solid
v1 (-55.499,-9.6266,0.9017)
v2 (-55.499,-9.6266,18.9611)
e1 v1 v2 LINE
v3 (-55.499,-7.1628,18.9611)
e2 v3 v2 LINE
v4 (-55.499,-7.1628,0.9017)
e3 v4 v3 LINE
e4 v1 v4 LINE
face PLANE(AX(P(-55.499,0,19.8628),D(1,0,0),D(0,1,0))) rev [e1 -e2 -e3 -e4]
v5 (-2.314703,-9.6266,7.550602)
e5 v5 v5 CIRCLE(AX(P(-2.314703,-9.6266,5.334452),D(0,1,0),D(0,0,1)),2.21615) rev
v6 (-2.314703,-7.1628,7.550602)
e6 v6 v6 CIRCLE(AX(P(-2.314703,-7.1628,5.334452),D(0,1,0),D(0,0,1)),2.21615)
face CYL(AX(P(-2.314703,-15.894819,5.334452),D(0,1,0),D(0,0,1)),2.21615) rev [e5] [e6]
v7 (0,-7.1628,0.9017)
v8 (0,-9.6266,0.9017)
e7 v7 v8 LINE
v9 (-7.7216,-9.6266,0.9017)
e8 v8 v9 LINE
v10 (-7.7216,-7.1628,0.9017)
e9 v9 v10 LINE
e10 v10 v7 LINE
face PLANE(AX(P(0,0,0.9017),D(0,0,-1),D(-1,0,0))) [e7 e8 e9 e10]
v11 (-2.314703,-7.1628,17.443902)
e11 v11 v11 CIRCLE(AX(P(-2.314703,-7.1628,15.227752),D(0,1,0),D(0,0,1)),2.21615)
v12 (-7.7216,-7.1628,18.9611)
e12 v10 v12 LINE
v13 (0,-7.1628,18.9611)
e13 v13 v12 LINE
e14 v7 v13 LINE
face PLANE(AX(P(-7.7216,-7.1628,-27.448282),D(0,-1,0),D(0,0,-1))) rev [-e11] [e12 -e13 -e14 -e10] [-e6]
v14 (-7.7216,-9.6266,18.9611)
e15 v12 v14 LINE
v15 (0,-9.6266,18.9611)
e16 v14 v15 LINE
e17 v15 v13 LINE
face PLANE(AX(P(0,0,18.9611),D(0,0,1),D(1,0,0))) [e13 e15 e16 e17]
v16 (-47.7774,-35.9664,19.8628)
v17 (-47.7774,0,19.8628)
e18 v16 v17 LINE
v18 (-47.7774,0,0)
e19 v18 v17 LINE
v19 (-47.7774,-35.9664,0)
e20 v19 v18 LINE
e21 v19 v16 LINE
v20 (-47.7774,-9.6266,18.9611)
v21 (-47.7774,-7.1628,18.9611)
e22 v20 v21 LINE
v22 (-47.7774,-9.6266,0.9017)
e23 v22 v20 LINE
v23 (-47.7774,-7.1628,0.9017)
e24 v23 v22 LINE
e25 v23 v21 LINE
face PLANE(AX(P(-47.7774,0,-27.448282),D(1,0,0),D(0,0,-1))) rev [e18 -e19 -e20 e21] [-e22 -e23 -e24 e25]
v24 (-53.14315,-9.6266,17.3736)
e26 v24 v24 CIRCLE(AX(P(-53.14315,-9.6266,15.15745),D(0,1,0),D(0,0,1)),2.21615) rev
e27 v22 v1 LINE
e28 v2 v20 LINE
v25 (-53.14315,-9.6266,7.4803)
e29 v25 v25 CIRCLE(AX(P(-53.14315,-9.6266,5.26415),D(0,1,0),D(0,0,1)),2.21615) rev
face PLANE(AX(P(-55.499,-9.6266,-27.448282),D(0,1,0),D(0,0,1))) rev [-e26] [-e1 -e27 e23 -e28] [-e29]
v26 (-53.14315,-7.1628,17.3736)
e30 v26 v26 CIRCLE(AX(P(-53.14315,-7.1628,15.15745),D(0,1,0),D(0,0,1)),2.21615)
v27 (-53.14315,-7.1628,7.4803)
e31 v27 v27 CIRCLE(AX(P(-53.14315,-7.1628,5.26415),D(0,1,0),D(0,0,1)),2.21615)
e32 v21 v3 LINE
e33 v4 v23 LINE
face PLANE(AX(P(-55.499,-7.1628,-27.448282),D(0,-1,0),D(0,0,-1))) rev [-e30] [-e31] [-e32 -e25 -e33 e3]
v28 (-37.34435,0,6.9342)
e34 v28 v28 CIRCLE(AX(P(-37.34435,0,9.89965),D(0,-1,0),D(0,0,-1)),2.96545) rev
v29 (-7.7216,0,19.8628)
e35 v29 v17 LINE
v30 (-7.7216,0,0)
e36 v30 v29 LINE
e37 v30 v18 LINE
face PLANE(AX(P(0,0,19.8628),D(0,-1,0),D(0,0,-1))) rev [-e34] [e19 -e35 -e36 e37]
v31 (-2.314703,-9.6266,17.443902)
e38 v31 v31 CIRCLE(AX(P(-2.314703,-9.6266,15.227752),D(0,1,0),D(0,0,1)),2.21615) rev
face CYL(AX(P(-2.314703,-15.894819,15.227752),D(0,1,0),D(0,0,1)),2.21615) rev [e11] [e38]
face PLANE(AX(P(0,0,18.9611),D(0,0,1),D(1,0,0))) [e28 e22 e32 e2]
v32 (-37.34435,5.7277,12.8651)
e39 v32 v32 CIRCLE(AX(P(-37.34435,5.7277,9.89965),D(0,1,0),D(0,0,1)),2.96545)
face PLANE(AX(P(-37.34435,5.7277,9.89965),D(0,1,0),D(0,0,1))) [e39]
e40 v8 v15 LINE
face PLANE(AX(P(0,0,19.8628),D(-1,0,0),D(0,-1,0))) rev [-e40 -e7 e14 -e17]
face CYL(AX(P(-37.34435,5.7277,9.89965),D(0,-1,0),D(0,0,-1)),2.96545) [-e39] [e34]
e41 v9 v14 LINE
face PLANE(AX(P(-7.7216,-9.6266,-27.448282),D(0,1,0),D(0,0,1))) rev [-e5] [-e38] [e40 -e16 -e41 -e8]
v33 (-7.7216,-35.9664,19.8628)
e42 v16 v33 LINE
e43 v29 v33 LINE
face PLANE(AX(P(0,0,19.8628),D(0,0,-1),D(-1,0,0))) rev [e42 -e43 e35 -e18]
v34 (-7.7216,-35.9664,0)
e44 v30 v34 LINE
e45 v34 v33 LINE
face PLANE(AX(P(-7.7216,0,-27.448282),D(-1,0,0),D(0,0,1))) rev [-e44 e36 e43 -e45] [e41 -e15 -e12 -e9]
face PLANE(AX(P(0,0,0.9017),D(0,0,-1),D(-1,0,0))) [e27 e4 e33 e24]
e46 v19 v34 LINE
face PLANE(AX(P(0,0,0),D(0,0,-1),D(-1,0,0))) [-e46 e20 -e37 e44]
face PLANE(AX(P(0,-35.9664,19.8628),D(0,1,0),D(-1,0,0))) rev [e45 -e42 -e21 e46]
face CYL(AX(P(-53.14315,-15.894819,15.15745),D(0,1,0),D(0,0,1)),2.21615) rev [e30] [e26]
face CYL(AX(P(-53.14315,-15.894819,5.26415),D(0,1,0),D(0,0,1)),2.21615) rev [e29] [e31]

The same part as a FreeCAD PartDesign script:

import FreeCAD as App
import Part
import Sketcher
Q = App.Units.Quantity


def add_polygon(sketch, points):
    """Adds a closed chain of lines whose ends are joined by coincident constraints."""
    first, n = sketch.GeometryCount, len(points)
    for a, b in zip(points, points[1:] + points[:1]):
        sketch.addGeometry(Part.LineSegment(App.Vector(*a, 0), App.Vector(*b, 0)), False)
    for i in range(n):
        sketch.addConstraint(Sketcher.Constraint("Coincident", first + i, 2, first + (i + 1) % n, 1))

doc = App.newDocument("Part")
body = doc.addObject("PartDesign::Body", "Body")

# Sketch on XY plane
sketch1 = body.newObject("Sketcher::SketchObject", "Sketch")
sketch1.AttachmentSupport = (doc.getObject("XY_Plane"), [""])
sketch1.MapMode = "FlatFace"
add_polygon(sketch1, [(-55, 0), (-55, -36), (0, -36), (0, 0)])  # lines 0-3
sketch1.addConstraint([
    Sketcher.Constraint("Vertical", 0),
    Sketcher.Constraint("Horizontal", 1),
    Sketcher.Constraint("Vertical", 2),
    Sketcher.Constraint("Horizontal", 3),
    Sketcher.Constraint("Coincident", 2, 2, -1, 1),
    Sketcher.Constraint("DistanceX", 1, 1, 1, 2, Q("2.185 in")),
    Sketcher.Constraint("DistanceY", 0, 2, 0, 1, Q("1.416 in")),
])
pad1 = body.newObject("PartDesign::Pad", "Pad")
pad1.Profile = sketch1
pad1.Length = Q("0.782 in")

# Sketch on XY plane
sketch2 = body.newObject("Sketcher::SketchObject", "Sketch001")
sketch2.AttachmentSupport = (doc.getObject("XY_Plane"), [""])
sketch2.MapMode = "FlatFace"
sketch2.AttachmentOffset = App.Placement(App.Vector(0, 0, 0.782 * 25.4), App.Rotation())
add_polygon(sketch2, [(-55, 0), (-55, -7), (-48, -7), (-48, 0)])  # lines 0-3
add_polygon(sketch2, [(-55, -10), (-55, -36), (-48, -36), (-48, -10)])  # lines 4-7
sketch2.addConstraint([
    Sketcher.Constraint("Vertical", 0),
    Sketcher.Constraint("Horizontal", 1),
    Sketcher.Constraint("Vertical", 2),
    Sketcher.Constraint("Horizontal", 3),
    Sketcher.Constraint("Vertical", 4),
    Sketcher.Constraint("Horizontal", 5),
    Sketcher.Constraint("Vertical", 6),
    Sketcher.Constraint("Horizontal", 7),
    Sketcher.Constraint("PointOnObject", 2, 2, -1),
    Sketcher.Constraint("Vertical", 3, 2, 4, 2),
    Sketcher.Constraint("Vertical", 2, 2, 5, 2),
    Sketcher.Constraint("DistanceX", 1, 1, 1, 2, Q("0.304 in")),
    Sketcher.Constraint("DistanceY", 0, 2, 0, 1, Q("0.282 in")),
    Sketcher.Constraint("DistanceY", 4, 2, 4, 1, Q("1.037 in")),
    Sketcher.Constraint("DistanceX", 0, 2, -1, 1, Q("2.185 in")),
    Sketcher.Constraint("DistanceY", 4, 2, -1, 1, Q("1.416 in")),
])
pocket1 = body.newObject("PartDesign::Pocket", "Pocket")
pocket1.Profile = sketch2
pocket1.Length = Q("0.782 in")

# Sketch on XY plane
sketch3 = body.newObject("Sketcher::SketchObject", "Sketch002")
sketch3.AttachmentSupport = (doc.getObject("XY_Plane"), [""])
sketch3.MapMode = "FlatFace"
sketch3.AttachmentOffset = App.Placement(App.Vector(0, 0, 0.782 * 25.4), App.Rotation())
add_polygon(sketch3, [(-8, 0), (-8, -7), (0, -7), (0, 0)])  # lines 0-3
add_polygon(sketch3, [(-8, -10), (-8, -36), (0, -36), (0, -10)])  # lines 4-7
sketch3.addConstraint([
    Sketcher.Constraint("Vertical", 0),
    Sketcher.Constraint("Horizontal", 1),
    Sketcher.Constraint("Vertical", 2),
    Sketcher.Constraint("Horizontal", 3),
    Sketcher.Constraint("Vertical", 4),
    Sketcher.Constraint("Horizontal", 5),
    Sketcher.Constraint("Vertical", 6),
    Sketcher.Constraint("Horizontal", 7),
    Sketcher.Constraint("Coincident", 2, 2, -1, 1),
    Sketcher.Constraint("PointOnObject", 5, 2, -2),
    Sketcher.Constraint("Vertical", 3, 2, 4, 2),
    Sketcher.Constraint("DistanceX", 1, 1, 1, 2, Q("0.304 in")),
    Sketcher.Constraint("DistanceY", 0, 2, 0, 1, Q("0.282 in")),
    Sketcher.Constraint("DistanceY", 4, 2, 4, 1, Q("1.037 in")),
    Sketcher.Constraint("DistanceY", 4, 2, -1, 1, Q("1.416 in")),
])
pocket2 = body.newObject("PartDesign::Pocket", "Pocket001")
pocket2.Profile = sketch3
pocket2.Length = Q("0.782 in")

# Sketch on XZ plane
sketch4 = body.newObject("Sketcher::SketchObject", "Sketch003")
sketch4.AttachmentSupport = (doc.getObject("XZ_Plane"), [""])
sketch4.MapMode = "FlatFace"
sketch4.AttachmentOffset = App.Placement(App.Vector(0, 0, 0.282 * 25.4), App.Rotation())
sketch4.addGeometry([
    Part.Circle(App.Vector(-53.1, 5.3, 0), App.Vector(0, 0, 1), 2.2),
    Part.Circle(App.Vector(-53.1, 15.2, 0), App.Vector(0, 0, 1), 2.2),
    Part.Circle(App.Vector(-2.3, 5.3, 0), App.Vector(0, 0, 1), 2.2),
    Part.Circle(App.Vector(-2.3, 15.2, 0), App.Vector(0, 0, 1), 2.2),
], False)
sketch4.addConstraint([
    Sketcher.Constraint("Equal", 0, 1),
    Sketcher.Constraint("Equal", 1, 2),
    Sketcher.Constraint("Equal", 2, 3),
    Sketcher.Constraint("Vertical", 0, 3, 1, 3),
    Sketcher.Constraint("Vertical", 2, 3, 3, 3),
    Sketcher.Constraint("Diameter", 0, Q("0.1745 in")),
    Sketcher.Constraint("DistanceY", 0, 3, 1, 3, Q("0.3895 in")),
    Sketcher.Constraint("DistanceY", 2, 3, 3, 3, Q("0.3895 in")),
    Sketcher.Constraint("DistanceY", 0, 3, 2, 3, 0.070302),
    Sketcher.Constraint("DistanceX", 0, 3, -1, 1, 53.14315),
    Sketcher.Constraint("DistanceY", -1, 1, 0, 3, 5.26415),
    Sketcher.Constraint("DistanceX", 2, 3, -1, 1, 2.314703),
])
pocket3 = body.newObject("PartDesign::Pocket", "Pocket002")
pocket3.Profile = sketch4
pocket3.Length = Q("0.097 in")
pocket3.Reversed = True

# Sketch on XY plane
sketch5 = body.newObject("Sketcher::SketchObject", "Sketch004")
sketch5.AttachmentSupport = (doc.getObject("XY_Plane"), [""])
sketch5.MapMode = "FlatFace"
sketch5.AttachmentOffset = App.Placement(App.Vector(0, 0, 0.782 * 25.4), App.Rotation())
add_polygon(sketch5, [(-55.5, -7.2), (-55.5, -9.6), (-47.8, -9.6), (-47.8, -7.2)])  # lines 0-3
sketch5.addConstraint([
    Sketcher.Constraint("Vertical", 0),
    Sketcher.Constraint("Horizontal", 1),
    Sketcher.Constraint("Vertical", 2),
    Sketcher.Constraint("Horizontal", 3),
    Sketcher.Constraint("DistanceX", 1, 1, 1, 2, Q("0.304 in")),
    Sketcher.Constraint("DistanceY", 0, 2, 0, 1, Q("0.097 in")),
    Sketcher.Constraint("DistanceX", 0, 2, -1, 1, Q("2.185 in")),
    Sketcher.Constraint("DistanceY", 0, 2, -1, 1, Q("0.379 in")),
])
pocket4 = body.newObject("PartDesign::Pocket", "Pocket003")
pocket4.Profile = sketch5
pocket4.Length = Q("0.0355 in")

# Sketch on XY plane
sketch6 = body.newObject("Sketcher::SketchObject", "Sketch005")
sketch6.AttachmentSupport = (doc.getObject("XY_Plane"), [""])
sketch6.MapMode = "FlatFace"
add_polygon(sketch6, [(-47.8, -7.2), (-47.8, -9.6), (-55.5, -9.6), (-55.5, -7.2)])  # lines 0-3
sketch6.addConstraint([
    Sketcher.Constraint("Vertical", 0),
    Sketcher.Constraint("Horizontal", 1),
    Sketcher.Constraint("Vertical", 2),
    Sketcher.Constraint("Horizontal", 3),
    Sketcher.Constraint("DistanceX", 1, 2, 1, 1, Q("0.304 in")),
    Sketcher.Constraint("DistanceY", 0, 2, 0, 1, Q("0.097 in")),
    Sketcher.Constraint("DistanceX", 0, 2, -1, 1, Q("1.881 in")),
    Sketcher.Constraint("DistanceY", 0, 2, -1, 1, Q("0.379 in")),
])
pocket5 = body.newObject("PartDesign::Pocket", "Pocket004")
pocket5.Profile = sketch6
pocket5.Length = Q("0.0355 in")
pocket5.Reversed = True

# Sketch on XY plane
sketch7 = body.newObject("Sketcher::SketchObject", "Sketch006")
sketch7.AttachmentSupport = (doc.getObject("XY_Plane"), [""])
sketch7.MapMode = "FlatFace"
add_polygon(sketch7, [(0, -7.2), (0, -9.6), (-7.7, -9.6), (-7.7, -7.2)])  # lines 0-3
sketch7.addConstraint([
    Sketcher.Constraint("Vertical", 0),
    Sketcher.Constraint("Horizontal", 1),
    Sketcher.Constraint("Vertical", 2),
    Sketcher.Constraint("Horizontal", 3),
    Sketcher.Constraint("PointOnObject", 0, 2, -2),
    Sketcher.Constraint("DistanceX", 1, 2, 1, 1, Q("0.304 in")),
    Sketcher.Constraint("DistanceY", 0, 2, 0, 1, Q("0.097 in")),
    Sketcher.Constraint("DistanceY", 0, 2, -1, 1, Q("0.379 in")),
])
pocket6 = body.newObject("PartDesign::Pocket", "Pocket005")
pocket6.Profile = sketch7
pocket6.Length = Q("0.0355 in")
pocket6.Reversed = True

# Sketch on XY plane
sketch8 = body.newObject("Sketcher::SketchObject", "Sketch007")
sketch8.AttachmentSupport = (doc.getObject("XY_Plane"), [""])
sketch8.MapMode = "FlatFace"
sketch8.AttachmentOffset = App.Placement(App.Vector(0, 0, 0.782 * 25.4), App.Rotation())
add_polygon(sketch8, [(-7.7, -7.2), (-7.7, -9.6), (0, -9.6), (0, -7.2)])  # lines 0-3
sketch8.addConstraint([
    Sketcher.Constraint("Vertical", 0),
    Sketcher.Constraint("Horizontal", 1),
    Sketcher.Constraint("Vertical", 2),
    Sketcher.Constraint("Horizontal", 3),
    Sketcher.Constraint("PointOnObject", 1, 2, -2),
    Sketcher.Constraint("DistanceX", 1, 1, 1, 2, Q("0.304 in")),
    Sketcher.Constraint("DistanceY", 0, 2, 0, 1, Q("0.097 in")),
    Sketcher.Constraint("DistanceY", 0, 2, -1, 1, Q("0.379 in")),
])
pocket7 = body.newObject("PartDesign::Pocket", "Pocket006")
pocket7.Profile = sketch8
pocket7.Length = Q("0.0355 in")

# Sketch on XZ plane
sketch9 = body.newObject("Sketcher::SketchObject", "Sketch008")
sketch9.AttachmentSupport = (doc.getObject("XZ_Plane"), [""])
sketch9.MapMode = "FlatFace"
sketch9.addGeometry(Part.Circle(App.Vector(-37.3, 9.9, 0), App.Vector(0, 0, 1), 3), False)
sketch9.addConstraint([
    Sketcher.Constraint("Diameter", 0, Q("0.2335 in")),
    Sketcher.Constraint("DistanceX", 0, 3, -1, 1, 37.34435),
    Sketcher.Constraint("DistanceY", -1, 1, 0, 3, 9.89965),
])
pad2 = body.newObject("PartDesign::Pad", "Pad001")
pad2.Profile = sketch9
pad2.Length = Q("0.2255 in")
pad2.Reversed = True

doc.recompute()
